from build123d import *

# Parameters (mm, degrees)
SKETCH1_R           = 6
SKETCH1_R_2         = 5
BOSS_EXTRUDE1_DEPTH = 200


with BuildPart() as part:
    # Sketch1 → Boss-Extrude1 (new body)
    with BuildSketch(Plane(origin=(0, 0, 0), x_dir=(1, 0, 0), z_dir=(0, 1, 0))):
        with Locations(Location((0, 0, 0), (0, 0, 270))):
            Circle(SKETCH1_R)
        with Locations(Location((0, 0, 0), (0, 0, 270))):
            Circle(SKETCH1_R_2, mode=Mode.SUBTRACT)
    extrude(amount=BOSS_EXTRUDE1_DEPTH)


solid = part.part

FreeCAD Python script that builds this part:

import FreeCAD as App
import Part
import Sketcher
from FreeCAD import Vector

doc = App.newDocument("Part")
body = doc.addObject("PartDesign::Body", "Body")

# Sketch on XZ plane
sketch1 = body.newObject("Sketcher::SketchObject", "Sketch")
sketch1.AttachmentSupport = (doc.getObject("XZ_Plane"), [""])
sketch1.MapMode = "FlatFace"
sketch1.addGeometry(Part.Circle(Vector(0, 0, 0), Vector(0, 0, 1), 6), False)
sketch1.addGeometry(Part.Circle(Vector(0, 0, 0), Vector(0, 0, 1), 5), False)
sketch1.addConstraint(Sketcher.Constraint("Coincident", 0, 3, -1, 1))
sketch1.addConstraint(Sketcher.Constraint("Coincident", 1, 3, -1, 1))
sketch1.addConstraint(Sketcher.Constraint("Diameter", 0, 12.0))
sketch1.addConstraint(Sketcher.Constraint("Diameter", 1, 10.0))
pad1 = body.newObject("PartDesign::Pad", "Pad")
pad1.Profile = sketch1
pad1.Length = 200
pad1.Reversed = True

doc.recompute()
